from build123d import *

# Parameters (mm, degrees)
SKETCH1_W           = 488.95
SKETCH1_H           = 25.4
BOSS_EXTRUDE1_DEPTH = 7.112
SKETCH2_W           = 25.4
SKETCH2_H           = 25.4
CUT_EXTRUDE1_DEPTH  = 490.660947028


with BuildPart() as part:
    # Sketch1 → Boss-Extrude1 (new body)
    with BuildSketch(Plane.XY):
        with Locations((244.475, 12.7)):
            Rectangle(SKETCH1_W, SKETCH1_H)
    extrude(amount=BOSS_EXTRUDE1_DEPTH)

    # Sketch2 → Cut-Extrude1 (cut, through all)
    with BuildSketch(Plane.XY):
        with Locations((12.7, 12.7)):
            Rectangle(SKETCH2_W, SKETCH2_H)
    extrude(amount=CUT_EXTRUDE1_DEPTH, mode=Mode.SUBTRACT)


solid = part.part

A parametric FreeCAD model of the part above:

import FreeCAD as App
import Part
import Sketcher
Q = App.Units.Quantity

doc = App.newDocument("Part")
body = doc.addObject("PartDesign::Body", "Body")

sketch1 = body.newObject("Sketcher::SketchObject", "Sketch")
sketch1.AttachmentSupport = (doc.getObject("XY_Plane"), [""])
sketch1.MapMode = "FlatFace"
sketch1.addGeometry([
    Part.LineSegment(App.Vector(0, 25, 0), App.Vector(0, 0, 0)),
    Part.LineSegment(App.Vector(0, 0, 0), App.Vector(489, 0, 0)),
    Part.LineSegment(App.Vector(489, 0, 0), App.Vector(489, 25, 0)),
    Part.LineSegment(App.Vector(489, 25, 0), App.Vector(0, 25, 0)),
], False)
sketch1.addConstraint([
    Sketcher.Constraint("Coincident", 0, 2, 1, 1),
    Sketcher.Constraint("Coincident", 1, 2, 2, 1),
    Sketcher.Constraint("Coincident", 2, 2, 3, 1),
    Sketcher.Constraint("Coincident", 3, 2, 0, 1),
    Sketcher.Constraint("Vertical", 0),
    Sketcher.Constraint("Horizontal", 1),
    Sketcher.Constraint("Vertical", 2),
    Sketcher.Constraint("Horizontal", 3),
    Sketcher.Constraint("Coincident", 0, 2, -1, 1),
    Sketcher.Constraint("DistanceY", 0, 2, 0, 1, Q("1 in")),
    Sketcher.Constraint("DistanceX", 1, 1, 1, 2, Q("19.25 in")),
])
pad1 = body.newObject("PartDesign::Pad", "Pad")
pad1.Profile = sketch1
pad1.Length = Q("0.28 in")

sketch2 = body.newObject("Sketcher::SketchObject", "Sketch001")
sketch2.AttachmentSupport = (doc.getObject("XY_Plane"), [""])
sketch2.MapMode = "FlatFace"
sketch2.addGeometry([
    Part.LineSegment(App.Vector(0, 25, 0), App.Vector(0, 0, 0)),
    Part.LineSegment(App.Vector(0, 0, 0), App.Vector(25, 0, 0)),
    Part.LineSegment(App.Vector(25, 0, 0), App.Vector(25, 25, 0)),
    Part.LineSegment(App.Vector(25, 25, 0), App.Vector(0, 25, 0)),
], False)
sketch2.addConstraint([
    Sketcher.Constraint("Coincident", 0, 2, 1, 1),
    Sketcher.Constraint("Coincident", 1, 2, 2, 1),
    Sketcher.Constraint("Coincident", 2, 2, 3, 1),
    Sketcher.Constraint("Coincident", 3, 2, 0, 1),
    Sketcher.Constraint("Vertical", 0),
    Sketcher.Constraint("Horizontal", 1),
    Sketcher.Constraint("Vertical", 2),
    Sketcher.Constraint("Horizontal", 3),
    Sketcher.Constraint("Coincident", 0, 2, -1, 1),
    Sketcher.Constraint("Equal", 3, 0),
    Sketcher.Constraint("DistanceX", 1, 1, 1, 2, Q("1 in")),
])
pocket1 = body.newObject("PartDesign::Pocket", "Pocket")
pocket1.Profile = sketch2
pocket1.Type = "ThroughAll"
pocket1.Reversed = True

doc.recompute()
